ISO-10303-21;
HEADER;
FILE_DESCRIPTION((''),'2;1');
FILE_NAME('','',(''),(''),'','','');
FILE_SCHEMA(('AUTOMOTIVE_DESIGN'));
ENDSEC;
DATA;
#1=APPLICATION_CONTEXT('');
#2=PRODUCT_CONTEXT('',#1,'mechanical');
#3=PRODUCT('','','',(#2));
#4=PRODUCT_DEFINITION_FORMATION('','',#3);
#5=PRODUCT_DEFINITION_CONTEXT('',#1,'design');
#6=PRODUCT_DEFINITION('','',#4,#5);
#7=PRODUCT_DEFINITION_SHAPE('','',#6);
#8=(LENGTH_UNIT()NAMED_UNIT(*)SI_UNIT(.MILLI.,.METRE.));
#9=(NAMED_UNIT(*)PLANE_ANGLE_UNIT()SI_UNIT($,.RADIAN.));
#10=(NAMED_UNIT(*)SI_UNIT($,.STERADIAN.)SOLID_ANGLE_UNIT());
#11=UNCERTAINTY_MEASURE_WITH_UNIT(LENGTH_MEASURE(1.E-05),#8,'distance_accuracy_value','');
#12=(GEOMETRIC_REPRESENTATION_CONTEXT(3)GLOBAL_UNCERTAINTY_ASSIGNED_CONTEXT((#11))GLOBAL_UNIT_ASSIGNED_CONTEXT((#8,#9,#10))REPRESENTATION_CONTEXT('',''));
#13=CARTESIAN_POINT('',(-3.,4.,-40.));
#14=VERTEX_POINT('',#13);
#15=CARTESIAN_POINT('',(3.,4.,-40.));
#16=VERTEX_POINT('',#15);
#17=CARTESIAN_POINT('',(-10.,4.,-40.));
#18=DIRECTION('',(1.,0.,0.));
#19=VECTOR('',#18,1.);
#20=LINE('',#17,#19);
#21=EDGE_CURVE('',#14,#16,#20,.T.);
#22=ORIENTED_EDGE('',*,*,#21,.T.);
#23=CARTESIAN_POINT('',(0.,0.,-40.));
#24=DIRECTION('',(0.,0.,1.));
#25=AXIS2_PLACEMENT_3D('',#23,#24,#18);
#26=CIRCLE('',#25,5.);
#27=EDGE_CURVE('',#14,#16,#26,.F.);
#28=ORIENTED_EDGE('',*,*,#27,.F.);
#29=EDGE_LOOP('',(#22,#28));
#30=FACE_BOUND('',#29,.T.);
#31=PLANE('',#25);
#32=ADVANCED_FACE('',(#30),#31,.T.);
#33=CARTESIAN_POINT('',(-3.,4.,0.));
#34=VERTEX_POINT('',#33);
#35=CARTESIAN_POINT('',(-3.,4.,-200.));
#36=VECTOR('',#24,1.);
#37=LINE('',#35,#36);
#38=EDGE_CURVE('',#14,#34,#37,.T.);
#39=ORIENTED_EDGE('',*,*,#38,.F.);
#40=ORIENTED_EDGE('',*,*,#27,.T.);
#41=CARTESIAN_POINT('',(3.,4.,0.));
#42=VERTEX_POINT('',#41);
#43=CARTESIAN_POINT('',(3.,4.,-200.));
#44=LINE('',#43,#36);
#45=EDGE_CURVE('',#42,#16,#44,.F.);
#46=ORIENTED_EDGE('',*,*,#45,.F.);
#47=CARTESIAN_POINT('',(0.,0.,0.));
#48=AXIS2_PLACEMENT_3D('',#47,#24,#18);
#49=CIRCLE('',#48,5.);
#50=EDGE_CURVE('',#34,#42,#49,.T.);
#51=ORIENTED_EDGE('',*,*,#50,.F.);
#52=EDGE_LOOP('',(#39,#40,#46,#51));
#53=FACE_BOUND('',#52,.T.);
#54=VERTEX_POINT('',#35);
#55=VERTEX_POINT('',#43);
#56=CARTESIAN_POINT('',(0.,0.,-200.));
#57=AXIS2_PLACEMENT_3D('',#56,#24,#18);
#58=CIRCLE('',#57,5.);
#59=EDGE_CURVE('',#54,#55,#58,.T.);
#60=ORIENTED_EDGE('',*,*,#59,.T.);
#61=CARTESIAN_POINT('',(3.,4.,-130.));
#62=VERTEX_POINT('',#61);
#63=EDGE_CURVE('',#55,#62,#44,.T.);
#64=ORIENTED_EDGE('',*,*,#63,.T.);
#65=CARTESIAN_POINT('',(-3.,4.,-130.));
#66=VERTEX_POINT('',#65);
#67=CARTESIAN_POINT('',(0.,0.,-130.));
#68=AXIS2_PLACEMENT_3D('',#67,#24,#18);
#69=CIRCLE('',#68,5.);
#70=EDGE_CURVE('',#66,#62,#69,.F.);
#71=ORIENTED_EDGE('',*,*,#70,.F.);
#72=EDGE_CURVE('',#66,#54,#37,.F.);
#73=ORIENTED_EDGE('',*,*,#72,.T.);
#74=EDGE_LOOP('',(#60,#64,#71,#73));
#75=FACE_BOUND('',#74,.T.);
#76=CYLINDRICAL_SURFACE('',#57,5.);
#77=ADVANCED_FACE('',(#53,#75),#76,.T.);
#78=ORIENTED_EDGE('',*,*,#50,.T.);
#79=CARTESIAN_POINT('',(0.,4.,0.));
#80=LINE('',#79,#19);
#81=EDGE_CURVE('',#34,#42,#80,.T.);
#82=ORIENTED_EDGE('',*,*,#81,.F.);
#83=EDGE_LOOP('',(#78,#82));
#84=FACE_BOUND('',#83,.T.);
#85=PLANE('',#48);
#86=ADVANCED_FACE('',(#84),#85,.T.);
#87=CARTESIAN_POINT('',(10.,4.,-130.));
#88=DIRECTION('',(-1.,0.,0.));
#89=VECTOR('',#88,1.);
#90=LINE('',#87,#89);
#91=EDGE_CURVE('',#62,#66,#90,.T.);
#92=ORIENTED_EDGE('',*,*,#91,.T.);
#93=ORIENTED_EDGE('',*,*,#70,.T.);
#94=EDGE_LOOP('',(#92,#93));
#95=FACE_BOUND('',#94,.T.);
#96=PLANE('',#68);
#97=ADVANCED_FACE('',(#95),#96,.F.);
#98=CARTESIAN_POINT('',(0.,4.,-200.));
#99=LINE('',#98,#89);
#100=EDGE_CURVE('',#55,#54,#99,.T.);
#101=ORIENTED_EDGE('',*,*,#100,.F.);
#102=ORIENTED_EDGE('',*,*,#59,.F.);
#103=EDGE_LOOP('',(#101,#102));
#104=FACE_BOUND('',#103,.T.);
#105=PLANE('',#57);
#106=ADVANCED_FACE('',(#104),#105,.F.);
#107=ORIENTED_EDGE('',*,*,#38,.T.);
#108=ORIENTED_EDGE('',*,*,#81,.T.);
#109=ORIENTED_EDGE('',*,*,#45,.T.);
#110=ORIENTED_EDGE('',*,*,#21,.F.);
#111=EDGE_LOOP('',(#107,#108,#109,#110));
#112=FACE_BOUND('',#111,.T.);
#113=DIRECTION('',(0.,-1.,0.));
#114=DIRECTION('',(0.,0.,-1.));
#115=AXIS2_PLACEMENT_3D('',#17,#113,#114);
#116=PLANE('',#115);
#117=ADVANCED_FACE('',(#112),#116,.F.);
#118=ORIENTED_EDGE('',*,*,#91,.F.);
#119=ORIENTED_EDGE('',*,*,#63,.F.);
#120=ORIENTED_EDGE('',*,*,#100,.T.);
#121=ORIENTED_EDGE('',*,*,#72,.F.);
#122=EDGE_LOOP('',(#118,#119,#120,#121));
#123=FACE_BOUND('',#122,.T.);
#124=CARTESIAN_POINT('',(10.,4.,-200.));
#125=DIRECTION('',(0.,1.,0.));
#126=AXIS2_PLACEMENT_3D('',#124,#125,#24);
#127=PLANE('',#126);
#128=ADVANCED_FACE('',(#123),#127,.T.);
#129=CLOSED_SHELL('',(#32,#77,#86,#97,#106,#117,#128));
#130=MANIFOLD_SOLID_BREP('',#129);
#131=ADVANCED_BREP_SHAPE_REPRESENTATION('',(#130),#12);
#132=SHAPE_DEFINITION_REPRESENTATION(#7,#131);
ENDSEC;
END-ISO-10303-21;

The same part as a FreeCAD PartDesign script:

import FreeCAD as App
import Part
import Sketcher

V = App.Vector
Q = App.Units.Quantity

doc = App.newDocument("Part")
params = doc.addObject("Spreadsheet::Sheet", "Params")
for row, (alias, value) in enumerate([
    ("sketch1_diameter", "10 mm"),
    ("pad1_length", "200 mm"),
    ("sketch2_width", "20 mm"),
    ("sketch2_height", "2 mm"),
    ("pocket1_length", "40 mm"),
    ("sketch3_width", "20 mm"),
    ("sketch3_height", "2 mm"),
], start=1):
    params.set(f"A{row}", alias)
    params.set(f"B{row}", "=" + value)
    params.setAlias(f"B{row}", alias)

body = doc.addObject("PartDesign::Body", "Body")

sketch1 = body.newObject("Sketcher::SketchObject", "Sketch")
sketch1.AttachmentSupport = (doc.getObject("XY_Plane"), [""])
sketch1.MapMode = "FlatFace"
sketch1.addGeometry(Part.Circle(V(0, 0, 0), V(0, 0, 1), 5), False)
sketch1.addConstraint(Sketcher.Constraint("Coincident", 0, 3, -1, 1))
sketch1.addConstraint(Sketcher.Constraint("Diameter", 0, Q("10 mm")))
sketch1.setExpression("Constraints[1]", "Params.sketch1_diameter")
pad1 = body.newObject("PartDesign::Pad", "Pad")
pad1.Profile = sketch1
pad1.setExpression("Length", "Params.pad1_length")
pad1.Reversed = True

sketch2 = body.newObject("Sketcher::SketchObject", "Sketch001")
sketch2.AttachmentSupport = (doc.getObject("XY_Plane"), [""])
sketch2.MapMode = "FlatFace"
sketch2.addGeometry(Part.LineSegment(V(-10, 6, 0), V(-10, 4, 0)), False)
sketch2.addGeometry(Part.LineSegment(V(-10, 4, 0), V(10, 4, 0)), False)
sketch2.addGeometry(Part.LineSegment(V(10, 4, 0), V(10, 6, 0)), False)
sketch2.addGeometry(Part.LineSegment(V(10, 6, 0), V(-10, 6, 0)), False)
sketch2.addConstraint(Sketcher.Constraint("Coincident", 0, 2, 1, 1))
sketch2.addConstraint(Sketcher.Constraint("Coincident", 1, 2, 2, 1))
sketch2.addConstraint(Sketcher.Constraint("Coincident", 2, 2, 3, 1))
sketch2.addConstraint(Sketcher.Constraint("Coincident", 3, 2, 0, 1))
sketch2.addConstraint(Sketcher.Constraint("Vertical", 0))
sketch2.addConstraint(Sketcher.Constraint("Horizontal", 1))
sketch2.addConstraint(Sketcher.Constraint("Vertical", 2))
sketch2.addConstraint(Sketcher.Constraint("Horizontal", 3))
sketch2.addConstraint(Sketcher.Constraint("DistanceX", 1, 1, 1, 2, Q("20 mm")))
sketch2.addConstraint(Sketcher.Constraint("DistanceY", 0, 2, 0, 1, Q("2 mm")))
sketch2.addConstraint(Sketcher.Constraint("DistanceX", 0, 2, -1, 1, Q("10 mm")))
sketch2.addConstraint(Sketcher.Constraint("DistanceY", -1, 1, 0, 2, Q("4 mm")))
sketch2.setExpression("Constraints[8]", "Params.sketch2_width")
sketch2.setExpression("Constraints[9]", "Params.sketch2_height")
pocket1 = body.newObject("PartDesign::Pocket", "Pocket")
pocket1.Profile = sketch2
pocket1.setExpression("Length", "Params.pocket1_length")

sketch3 = body.newObject("Sketcher::SketchObject", "Sketch002")
sketch3.AttachmentSupport = (doc.getObject("XY_Plane"), [""])
sketch3.MapMode = "FlatFace"
sketch3.AttachmentOffset = App.Placement(V(0, 0, -130), App.Rotation())
sketch3.addGeometry(Part.LineSegment(V(10, 6, 0), V(10, 4, 0)), False)
sketch3.addGeometry(Part.LineSegment(V(10, 4, 0), V(-10, 4, 0)), False)
sketch3.addGeometry(Part.LineSegment(V(-10, 4, 0), V(-10, 6, 0)), False)
sketch3.addGeometry(Part.LineSegment(V(-10, 6, 0), V(10, 6, 0)), False)
sketch3.addConstraint(Sketcher.Constraint("Coincident", 0, 2, 1, 1))
sketch3.addConstraint(Sketcher.Constraint("Coincident", 1, 2, 2, 1))
sketch3.addConstraint(Sketcher.Constraint("Coincident", 2, 2, 3, 1))
sketch3.addConstraint(Sketcher.Constraint("Coincident", 3, 2, 0, 1))
sketch3.addConstraint(Sketcher.Constraint("Vertical", 0))
sketch3.addConstraint(Sketcher.Constraint("Horizontal", 1))
sketch3.addConstraint(Sketcher.Constraint("Vertical", 2))
sketch3.addConstraint(Sketcher.Constraint("Horizontal", 3))
sketch3.addConstraint(Sketcher.Constraint("DistanceX", 1, 2, 1, 1, Q("20 mm")))
sketch3.addConstraint(Sketcher.Constraint("DistanceY", 0, 2, 0, 1, Q("2 mm")))
sketch3.addConstraint(Sketcher.Constraint("DistanceX", -1, 1, 0, 2, Q("10 mm")))
sketch3.addConstraint(Sketcher.Constraint("DistanceY", -1, 1, 0, 2, Q("4 mm")))
sketch3.setExpression("Constraints[8]", "Params.sketch3_width")
sketch3.setExpression("Constraints[9]", "Params.sketch3_height")
pocket2 = body.newObject("PartDesign::Pocket", "Pocket001")
pocket2.Profile = sketch3
pocket2.Type = "ThroughAll"

doc.recompute()
